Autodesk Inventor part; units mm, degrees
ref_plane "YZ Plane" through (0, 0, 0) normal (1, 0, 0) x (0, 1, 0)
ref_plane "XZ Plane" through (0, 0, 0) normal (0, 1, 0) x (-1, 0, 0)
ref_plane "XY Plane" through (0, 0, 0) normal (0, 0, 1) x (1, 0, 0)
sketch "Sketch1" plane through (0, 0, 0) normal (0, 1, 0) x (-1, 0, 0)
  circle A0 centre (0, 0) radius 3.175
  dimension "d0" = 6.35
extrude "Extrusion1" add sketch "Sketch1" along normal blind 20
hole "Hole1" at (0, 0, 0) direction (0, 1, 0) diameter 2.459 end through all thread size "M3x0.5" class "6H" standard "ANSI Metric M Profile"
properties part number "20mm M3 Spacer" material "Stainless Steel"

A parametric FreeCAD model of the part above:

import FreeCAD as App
import Part
import Sketcher
from FreeCAD import Vector
Q = App.Units.Quantity

doc = App.newDocument("Part")
body = doc.addObject("PartDesign::Body", "Body")

sketch1 = body.newObject("Sketcher::SketchObject", "Sketch")
sketch1.AttachmentSupport = (doc.getObject("XZ_Plane"), [""])
sketch1.MapMode = "FlatFace"
sketch1.addGeometry(Part.Circle(Vector(0, 0, 0), Vector(0, 0, 1), 3.2), False)
sketch1.addConstraint([
    Sketcher.Constraint("Coincident", 0, 3, -1, 1),
    Sketcher.Constraint("Diameter", 0, Q("0.25 in")),
])
pad1 = body.newObject("PartDesign::Pad", "Pad")
pad1.Profile = sketch1
pad1.Length = Q("0.7874016 in")
pad1.Reversed = True

sketch2 = body.newObject("Sketcher::SketchObject", "Sketch001")
sketch2.AttachmentSupport = (doc.getObject("XZ_Plane"), [""])
sketch2.MapMode = "FlatFace"
sketch2.addGeometry(Part.Circle(Vector(0, 0, 0), Vector(0, 0, 1), 1.2), False)
sketch2.addConstraint([
    Sketcher.Constraint("Coincident", 0, 3, -1, 1),
    Sketcher.Constraint("Diameter", 0, Q("0.0968 in")),
])
doc.recompute()
hole = body.newObject("PartDesign::Hole", "Hole")
hole.Profile = sketch2
hole.ThreadType = "None"
hole.Diameter = Q("0.096811 in")
hole.DepthType = "ThroughAll"

doc.recompute()
